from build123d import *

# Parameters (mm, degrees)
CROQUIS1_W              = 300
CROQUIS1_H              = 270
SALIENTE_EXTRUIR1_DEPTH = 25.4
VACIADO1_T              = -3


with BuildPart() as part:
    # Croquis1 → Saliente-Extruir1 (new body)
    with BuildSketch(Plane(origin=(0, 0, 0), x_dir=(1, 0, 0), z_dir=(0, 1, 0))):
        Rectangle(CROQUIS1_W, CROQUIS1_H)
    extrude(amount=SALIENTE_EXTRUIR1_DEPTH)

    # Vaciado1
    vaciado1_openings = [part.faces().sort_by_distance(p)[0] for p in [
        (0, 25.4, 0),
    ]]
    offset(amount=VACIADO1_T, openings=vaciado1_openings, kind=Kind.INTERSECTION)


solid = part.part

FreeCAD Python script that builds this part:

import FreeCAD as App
import Part
import Sketcher

V = App.Vector
Q = App.Units.Quantity


def faces_at(feature, points):
    """Names of the faces that lie closest to the given points."""
    faces = feature.Shape.Faces
    near = lambda p: min(range(len(faces)), key=lambda i: faces[i].distToShape(Part.Vertex(*p))[0])
    return sorted({f"Face{near(p) + 1}" for p in points})

doc = App.newDocument("Part")
params = doc.addObject("Spreadsheet::Sheet", "Params")
for row, (alias, value) in enumerate([
    ("sketch1_width", "300 mm"),
    ("sketch1_height", "270 mm"),
    ("pad1_length", "25.4 mm"),
    ("thickness_wall", "3 mm"),
], start=1):
    params.set(f"A{row}", alias)
    params.set(f"B{row}", "=" + value)
    params.setAlias(f"B{row}", alias)

body = doc.addObject("PartDesign::Body", "Body")

sketch1 = doc.addObject("Sketcher::SketchObject", "Sketch")
body.addObject(sketch1)
sketch1.AttachmentSupport = (doc.XZ_Plane, [""])
sketch1.MapMode = "FlatFace"
sketch1.addGeometry(Part.LineSegment(V(-150, -135, 0), V(-150, 135, 0)), False)
sketch1.addGeometry(Part.LineSegment(V(-150, 135, 0), V(150, 135, 0)), False)
sketch1.addGeometry(Part.LineSegment(V(150, 135, 0), V(150, -135, 0)), False)
sketch1.addGeometry(Part.LineSegment(V(150, -135, 0), V(-150, -135, 0)), False)
sketch1.addConstraint(Sketcher.Constraint("Coincident", 0, 2, 1, 1))
sketch1.addConstraint(Sketcher.Constraint("Coincident", 1, 2, 2, 1))
sketch1.addConstraint(Sketcher.Constraint("Coincident", 2, 2, 3, 1))
sketch1.addConstraint(Sketcher.Constraint("Coincident", 3, 2, 0, 1))
sketch1.addConstraint(Sketcher.Constraint("Vertical", 0))
sketch1.addConstraint(Sketcher.Constraint("Horizontal", 1))
sketch1.addConstraint(Sketcher.Constraint("Vertical", 2))
sketch1.addConstraint(Sketcher.Constraint("Horizontal", 3))
sketch1.addConstraint(Sketcher.Constraint("Symmetric", 0, 2, 2, 2, -1, 1))
sketch1.addConstraint(Sketcher.Constraint("DistanceX", 1, 1, 1, 2, Q("300 mm")))
sketch1.addConstraint(Sketcher.Constraint("DistanceY", 0, 1, 0, 2, Q("270 mm")))
sketch1.setExpression("Constraints[9]", "Params.sketch1_width")
sketch1.setExpression("Constraints[10]", "Params.sketch1_height")
pad1 = doc.addObject("PartDesign::Pad", "Pad")
body.addObject(pad1)
pad1.Profile = sketch1
pad1.setExpression("Length", "Params.pad1_length")
pad1.Reversed = True
doc.recompute()

thickness = doc.addObject("PartDesign::Thickness", "Thickness")
body.addObject(thickness)
thickness.Base = (pad1, faces_at(pad1, [(0, 25.4, 0)]))
thickness.setExpression("Value", "Params.thickness_wall")
thickness.Reversed = True
thickness.Join = "Intersection"

doc.recompute()
